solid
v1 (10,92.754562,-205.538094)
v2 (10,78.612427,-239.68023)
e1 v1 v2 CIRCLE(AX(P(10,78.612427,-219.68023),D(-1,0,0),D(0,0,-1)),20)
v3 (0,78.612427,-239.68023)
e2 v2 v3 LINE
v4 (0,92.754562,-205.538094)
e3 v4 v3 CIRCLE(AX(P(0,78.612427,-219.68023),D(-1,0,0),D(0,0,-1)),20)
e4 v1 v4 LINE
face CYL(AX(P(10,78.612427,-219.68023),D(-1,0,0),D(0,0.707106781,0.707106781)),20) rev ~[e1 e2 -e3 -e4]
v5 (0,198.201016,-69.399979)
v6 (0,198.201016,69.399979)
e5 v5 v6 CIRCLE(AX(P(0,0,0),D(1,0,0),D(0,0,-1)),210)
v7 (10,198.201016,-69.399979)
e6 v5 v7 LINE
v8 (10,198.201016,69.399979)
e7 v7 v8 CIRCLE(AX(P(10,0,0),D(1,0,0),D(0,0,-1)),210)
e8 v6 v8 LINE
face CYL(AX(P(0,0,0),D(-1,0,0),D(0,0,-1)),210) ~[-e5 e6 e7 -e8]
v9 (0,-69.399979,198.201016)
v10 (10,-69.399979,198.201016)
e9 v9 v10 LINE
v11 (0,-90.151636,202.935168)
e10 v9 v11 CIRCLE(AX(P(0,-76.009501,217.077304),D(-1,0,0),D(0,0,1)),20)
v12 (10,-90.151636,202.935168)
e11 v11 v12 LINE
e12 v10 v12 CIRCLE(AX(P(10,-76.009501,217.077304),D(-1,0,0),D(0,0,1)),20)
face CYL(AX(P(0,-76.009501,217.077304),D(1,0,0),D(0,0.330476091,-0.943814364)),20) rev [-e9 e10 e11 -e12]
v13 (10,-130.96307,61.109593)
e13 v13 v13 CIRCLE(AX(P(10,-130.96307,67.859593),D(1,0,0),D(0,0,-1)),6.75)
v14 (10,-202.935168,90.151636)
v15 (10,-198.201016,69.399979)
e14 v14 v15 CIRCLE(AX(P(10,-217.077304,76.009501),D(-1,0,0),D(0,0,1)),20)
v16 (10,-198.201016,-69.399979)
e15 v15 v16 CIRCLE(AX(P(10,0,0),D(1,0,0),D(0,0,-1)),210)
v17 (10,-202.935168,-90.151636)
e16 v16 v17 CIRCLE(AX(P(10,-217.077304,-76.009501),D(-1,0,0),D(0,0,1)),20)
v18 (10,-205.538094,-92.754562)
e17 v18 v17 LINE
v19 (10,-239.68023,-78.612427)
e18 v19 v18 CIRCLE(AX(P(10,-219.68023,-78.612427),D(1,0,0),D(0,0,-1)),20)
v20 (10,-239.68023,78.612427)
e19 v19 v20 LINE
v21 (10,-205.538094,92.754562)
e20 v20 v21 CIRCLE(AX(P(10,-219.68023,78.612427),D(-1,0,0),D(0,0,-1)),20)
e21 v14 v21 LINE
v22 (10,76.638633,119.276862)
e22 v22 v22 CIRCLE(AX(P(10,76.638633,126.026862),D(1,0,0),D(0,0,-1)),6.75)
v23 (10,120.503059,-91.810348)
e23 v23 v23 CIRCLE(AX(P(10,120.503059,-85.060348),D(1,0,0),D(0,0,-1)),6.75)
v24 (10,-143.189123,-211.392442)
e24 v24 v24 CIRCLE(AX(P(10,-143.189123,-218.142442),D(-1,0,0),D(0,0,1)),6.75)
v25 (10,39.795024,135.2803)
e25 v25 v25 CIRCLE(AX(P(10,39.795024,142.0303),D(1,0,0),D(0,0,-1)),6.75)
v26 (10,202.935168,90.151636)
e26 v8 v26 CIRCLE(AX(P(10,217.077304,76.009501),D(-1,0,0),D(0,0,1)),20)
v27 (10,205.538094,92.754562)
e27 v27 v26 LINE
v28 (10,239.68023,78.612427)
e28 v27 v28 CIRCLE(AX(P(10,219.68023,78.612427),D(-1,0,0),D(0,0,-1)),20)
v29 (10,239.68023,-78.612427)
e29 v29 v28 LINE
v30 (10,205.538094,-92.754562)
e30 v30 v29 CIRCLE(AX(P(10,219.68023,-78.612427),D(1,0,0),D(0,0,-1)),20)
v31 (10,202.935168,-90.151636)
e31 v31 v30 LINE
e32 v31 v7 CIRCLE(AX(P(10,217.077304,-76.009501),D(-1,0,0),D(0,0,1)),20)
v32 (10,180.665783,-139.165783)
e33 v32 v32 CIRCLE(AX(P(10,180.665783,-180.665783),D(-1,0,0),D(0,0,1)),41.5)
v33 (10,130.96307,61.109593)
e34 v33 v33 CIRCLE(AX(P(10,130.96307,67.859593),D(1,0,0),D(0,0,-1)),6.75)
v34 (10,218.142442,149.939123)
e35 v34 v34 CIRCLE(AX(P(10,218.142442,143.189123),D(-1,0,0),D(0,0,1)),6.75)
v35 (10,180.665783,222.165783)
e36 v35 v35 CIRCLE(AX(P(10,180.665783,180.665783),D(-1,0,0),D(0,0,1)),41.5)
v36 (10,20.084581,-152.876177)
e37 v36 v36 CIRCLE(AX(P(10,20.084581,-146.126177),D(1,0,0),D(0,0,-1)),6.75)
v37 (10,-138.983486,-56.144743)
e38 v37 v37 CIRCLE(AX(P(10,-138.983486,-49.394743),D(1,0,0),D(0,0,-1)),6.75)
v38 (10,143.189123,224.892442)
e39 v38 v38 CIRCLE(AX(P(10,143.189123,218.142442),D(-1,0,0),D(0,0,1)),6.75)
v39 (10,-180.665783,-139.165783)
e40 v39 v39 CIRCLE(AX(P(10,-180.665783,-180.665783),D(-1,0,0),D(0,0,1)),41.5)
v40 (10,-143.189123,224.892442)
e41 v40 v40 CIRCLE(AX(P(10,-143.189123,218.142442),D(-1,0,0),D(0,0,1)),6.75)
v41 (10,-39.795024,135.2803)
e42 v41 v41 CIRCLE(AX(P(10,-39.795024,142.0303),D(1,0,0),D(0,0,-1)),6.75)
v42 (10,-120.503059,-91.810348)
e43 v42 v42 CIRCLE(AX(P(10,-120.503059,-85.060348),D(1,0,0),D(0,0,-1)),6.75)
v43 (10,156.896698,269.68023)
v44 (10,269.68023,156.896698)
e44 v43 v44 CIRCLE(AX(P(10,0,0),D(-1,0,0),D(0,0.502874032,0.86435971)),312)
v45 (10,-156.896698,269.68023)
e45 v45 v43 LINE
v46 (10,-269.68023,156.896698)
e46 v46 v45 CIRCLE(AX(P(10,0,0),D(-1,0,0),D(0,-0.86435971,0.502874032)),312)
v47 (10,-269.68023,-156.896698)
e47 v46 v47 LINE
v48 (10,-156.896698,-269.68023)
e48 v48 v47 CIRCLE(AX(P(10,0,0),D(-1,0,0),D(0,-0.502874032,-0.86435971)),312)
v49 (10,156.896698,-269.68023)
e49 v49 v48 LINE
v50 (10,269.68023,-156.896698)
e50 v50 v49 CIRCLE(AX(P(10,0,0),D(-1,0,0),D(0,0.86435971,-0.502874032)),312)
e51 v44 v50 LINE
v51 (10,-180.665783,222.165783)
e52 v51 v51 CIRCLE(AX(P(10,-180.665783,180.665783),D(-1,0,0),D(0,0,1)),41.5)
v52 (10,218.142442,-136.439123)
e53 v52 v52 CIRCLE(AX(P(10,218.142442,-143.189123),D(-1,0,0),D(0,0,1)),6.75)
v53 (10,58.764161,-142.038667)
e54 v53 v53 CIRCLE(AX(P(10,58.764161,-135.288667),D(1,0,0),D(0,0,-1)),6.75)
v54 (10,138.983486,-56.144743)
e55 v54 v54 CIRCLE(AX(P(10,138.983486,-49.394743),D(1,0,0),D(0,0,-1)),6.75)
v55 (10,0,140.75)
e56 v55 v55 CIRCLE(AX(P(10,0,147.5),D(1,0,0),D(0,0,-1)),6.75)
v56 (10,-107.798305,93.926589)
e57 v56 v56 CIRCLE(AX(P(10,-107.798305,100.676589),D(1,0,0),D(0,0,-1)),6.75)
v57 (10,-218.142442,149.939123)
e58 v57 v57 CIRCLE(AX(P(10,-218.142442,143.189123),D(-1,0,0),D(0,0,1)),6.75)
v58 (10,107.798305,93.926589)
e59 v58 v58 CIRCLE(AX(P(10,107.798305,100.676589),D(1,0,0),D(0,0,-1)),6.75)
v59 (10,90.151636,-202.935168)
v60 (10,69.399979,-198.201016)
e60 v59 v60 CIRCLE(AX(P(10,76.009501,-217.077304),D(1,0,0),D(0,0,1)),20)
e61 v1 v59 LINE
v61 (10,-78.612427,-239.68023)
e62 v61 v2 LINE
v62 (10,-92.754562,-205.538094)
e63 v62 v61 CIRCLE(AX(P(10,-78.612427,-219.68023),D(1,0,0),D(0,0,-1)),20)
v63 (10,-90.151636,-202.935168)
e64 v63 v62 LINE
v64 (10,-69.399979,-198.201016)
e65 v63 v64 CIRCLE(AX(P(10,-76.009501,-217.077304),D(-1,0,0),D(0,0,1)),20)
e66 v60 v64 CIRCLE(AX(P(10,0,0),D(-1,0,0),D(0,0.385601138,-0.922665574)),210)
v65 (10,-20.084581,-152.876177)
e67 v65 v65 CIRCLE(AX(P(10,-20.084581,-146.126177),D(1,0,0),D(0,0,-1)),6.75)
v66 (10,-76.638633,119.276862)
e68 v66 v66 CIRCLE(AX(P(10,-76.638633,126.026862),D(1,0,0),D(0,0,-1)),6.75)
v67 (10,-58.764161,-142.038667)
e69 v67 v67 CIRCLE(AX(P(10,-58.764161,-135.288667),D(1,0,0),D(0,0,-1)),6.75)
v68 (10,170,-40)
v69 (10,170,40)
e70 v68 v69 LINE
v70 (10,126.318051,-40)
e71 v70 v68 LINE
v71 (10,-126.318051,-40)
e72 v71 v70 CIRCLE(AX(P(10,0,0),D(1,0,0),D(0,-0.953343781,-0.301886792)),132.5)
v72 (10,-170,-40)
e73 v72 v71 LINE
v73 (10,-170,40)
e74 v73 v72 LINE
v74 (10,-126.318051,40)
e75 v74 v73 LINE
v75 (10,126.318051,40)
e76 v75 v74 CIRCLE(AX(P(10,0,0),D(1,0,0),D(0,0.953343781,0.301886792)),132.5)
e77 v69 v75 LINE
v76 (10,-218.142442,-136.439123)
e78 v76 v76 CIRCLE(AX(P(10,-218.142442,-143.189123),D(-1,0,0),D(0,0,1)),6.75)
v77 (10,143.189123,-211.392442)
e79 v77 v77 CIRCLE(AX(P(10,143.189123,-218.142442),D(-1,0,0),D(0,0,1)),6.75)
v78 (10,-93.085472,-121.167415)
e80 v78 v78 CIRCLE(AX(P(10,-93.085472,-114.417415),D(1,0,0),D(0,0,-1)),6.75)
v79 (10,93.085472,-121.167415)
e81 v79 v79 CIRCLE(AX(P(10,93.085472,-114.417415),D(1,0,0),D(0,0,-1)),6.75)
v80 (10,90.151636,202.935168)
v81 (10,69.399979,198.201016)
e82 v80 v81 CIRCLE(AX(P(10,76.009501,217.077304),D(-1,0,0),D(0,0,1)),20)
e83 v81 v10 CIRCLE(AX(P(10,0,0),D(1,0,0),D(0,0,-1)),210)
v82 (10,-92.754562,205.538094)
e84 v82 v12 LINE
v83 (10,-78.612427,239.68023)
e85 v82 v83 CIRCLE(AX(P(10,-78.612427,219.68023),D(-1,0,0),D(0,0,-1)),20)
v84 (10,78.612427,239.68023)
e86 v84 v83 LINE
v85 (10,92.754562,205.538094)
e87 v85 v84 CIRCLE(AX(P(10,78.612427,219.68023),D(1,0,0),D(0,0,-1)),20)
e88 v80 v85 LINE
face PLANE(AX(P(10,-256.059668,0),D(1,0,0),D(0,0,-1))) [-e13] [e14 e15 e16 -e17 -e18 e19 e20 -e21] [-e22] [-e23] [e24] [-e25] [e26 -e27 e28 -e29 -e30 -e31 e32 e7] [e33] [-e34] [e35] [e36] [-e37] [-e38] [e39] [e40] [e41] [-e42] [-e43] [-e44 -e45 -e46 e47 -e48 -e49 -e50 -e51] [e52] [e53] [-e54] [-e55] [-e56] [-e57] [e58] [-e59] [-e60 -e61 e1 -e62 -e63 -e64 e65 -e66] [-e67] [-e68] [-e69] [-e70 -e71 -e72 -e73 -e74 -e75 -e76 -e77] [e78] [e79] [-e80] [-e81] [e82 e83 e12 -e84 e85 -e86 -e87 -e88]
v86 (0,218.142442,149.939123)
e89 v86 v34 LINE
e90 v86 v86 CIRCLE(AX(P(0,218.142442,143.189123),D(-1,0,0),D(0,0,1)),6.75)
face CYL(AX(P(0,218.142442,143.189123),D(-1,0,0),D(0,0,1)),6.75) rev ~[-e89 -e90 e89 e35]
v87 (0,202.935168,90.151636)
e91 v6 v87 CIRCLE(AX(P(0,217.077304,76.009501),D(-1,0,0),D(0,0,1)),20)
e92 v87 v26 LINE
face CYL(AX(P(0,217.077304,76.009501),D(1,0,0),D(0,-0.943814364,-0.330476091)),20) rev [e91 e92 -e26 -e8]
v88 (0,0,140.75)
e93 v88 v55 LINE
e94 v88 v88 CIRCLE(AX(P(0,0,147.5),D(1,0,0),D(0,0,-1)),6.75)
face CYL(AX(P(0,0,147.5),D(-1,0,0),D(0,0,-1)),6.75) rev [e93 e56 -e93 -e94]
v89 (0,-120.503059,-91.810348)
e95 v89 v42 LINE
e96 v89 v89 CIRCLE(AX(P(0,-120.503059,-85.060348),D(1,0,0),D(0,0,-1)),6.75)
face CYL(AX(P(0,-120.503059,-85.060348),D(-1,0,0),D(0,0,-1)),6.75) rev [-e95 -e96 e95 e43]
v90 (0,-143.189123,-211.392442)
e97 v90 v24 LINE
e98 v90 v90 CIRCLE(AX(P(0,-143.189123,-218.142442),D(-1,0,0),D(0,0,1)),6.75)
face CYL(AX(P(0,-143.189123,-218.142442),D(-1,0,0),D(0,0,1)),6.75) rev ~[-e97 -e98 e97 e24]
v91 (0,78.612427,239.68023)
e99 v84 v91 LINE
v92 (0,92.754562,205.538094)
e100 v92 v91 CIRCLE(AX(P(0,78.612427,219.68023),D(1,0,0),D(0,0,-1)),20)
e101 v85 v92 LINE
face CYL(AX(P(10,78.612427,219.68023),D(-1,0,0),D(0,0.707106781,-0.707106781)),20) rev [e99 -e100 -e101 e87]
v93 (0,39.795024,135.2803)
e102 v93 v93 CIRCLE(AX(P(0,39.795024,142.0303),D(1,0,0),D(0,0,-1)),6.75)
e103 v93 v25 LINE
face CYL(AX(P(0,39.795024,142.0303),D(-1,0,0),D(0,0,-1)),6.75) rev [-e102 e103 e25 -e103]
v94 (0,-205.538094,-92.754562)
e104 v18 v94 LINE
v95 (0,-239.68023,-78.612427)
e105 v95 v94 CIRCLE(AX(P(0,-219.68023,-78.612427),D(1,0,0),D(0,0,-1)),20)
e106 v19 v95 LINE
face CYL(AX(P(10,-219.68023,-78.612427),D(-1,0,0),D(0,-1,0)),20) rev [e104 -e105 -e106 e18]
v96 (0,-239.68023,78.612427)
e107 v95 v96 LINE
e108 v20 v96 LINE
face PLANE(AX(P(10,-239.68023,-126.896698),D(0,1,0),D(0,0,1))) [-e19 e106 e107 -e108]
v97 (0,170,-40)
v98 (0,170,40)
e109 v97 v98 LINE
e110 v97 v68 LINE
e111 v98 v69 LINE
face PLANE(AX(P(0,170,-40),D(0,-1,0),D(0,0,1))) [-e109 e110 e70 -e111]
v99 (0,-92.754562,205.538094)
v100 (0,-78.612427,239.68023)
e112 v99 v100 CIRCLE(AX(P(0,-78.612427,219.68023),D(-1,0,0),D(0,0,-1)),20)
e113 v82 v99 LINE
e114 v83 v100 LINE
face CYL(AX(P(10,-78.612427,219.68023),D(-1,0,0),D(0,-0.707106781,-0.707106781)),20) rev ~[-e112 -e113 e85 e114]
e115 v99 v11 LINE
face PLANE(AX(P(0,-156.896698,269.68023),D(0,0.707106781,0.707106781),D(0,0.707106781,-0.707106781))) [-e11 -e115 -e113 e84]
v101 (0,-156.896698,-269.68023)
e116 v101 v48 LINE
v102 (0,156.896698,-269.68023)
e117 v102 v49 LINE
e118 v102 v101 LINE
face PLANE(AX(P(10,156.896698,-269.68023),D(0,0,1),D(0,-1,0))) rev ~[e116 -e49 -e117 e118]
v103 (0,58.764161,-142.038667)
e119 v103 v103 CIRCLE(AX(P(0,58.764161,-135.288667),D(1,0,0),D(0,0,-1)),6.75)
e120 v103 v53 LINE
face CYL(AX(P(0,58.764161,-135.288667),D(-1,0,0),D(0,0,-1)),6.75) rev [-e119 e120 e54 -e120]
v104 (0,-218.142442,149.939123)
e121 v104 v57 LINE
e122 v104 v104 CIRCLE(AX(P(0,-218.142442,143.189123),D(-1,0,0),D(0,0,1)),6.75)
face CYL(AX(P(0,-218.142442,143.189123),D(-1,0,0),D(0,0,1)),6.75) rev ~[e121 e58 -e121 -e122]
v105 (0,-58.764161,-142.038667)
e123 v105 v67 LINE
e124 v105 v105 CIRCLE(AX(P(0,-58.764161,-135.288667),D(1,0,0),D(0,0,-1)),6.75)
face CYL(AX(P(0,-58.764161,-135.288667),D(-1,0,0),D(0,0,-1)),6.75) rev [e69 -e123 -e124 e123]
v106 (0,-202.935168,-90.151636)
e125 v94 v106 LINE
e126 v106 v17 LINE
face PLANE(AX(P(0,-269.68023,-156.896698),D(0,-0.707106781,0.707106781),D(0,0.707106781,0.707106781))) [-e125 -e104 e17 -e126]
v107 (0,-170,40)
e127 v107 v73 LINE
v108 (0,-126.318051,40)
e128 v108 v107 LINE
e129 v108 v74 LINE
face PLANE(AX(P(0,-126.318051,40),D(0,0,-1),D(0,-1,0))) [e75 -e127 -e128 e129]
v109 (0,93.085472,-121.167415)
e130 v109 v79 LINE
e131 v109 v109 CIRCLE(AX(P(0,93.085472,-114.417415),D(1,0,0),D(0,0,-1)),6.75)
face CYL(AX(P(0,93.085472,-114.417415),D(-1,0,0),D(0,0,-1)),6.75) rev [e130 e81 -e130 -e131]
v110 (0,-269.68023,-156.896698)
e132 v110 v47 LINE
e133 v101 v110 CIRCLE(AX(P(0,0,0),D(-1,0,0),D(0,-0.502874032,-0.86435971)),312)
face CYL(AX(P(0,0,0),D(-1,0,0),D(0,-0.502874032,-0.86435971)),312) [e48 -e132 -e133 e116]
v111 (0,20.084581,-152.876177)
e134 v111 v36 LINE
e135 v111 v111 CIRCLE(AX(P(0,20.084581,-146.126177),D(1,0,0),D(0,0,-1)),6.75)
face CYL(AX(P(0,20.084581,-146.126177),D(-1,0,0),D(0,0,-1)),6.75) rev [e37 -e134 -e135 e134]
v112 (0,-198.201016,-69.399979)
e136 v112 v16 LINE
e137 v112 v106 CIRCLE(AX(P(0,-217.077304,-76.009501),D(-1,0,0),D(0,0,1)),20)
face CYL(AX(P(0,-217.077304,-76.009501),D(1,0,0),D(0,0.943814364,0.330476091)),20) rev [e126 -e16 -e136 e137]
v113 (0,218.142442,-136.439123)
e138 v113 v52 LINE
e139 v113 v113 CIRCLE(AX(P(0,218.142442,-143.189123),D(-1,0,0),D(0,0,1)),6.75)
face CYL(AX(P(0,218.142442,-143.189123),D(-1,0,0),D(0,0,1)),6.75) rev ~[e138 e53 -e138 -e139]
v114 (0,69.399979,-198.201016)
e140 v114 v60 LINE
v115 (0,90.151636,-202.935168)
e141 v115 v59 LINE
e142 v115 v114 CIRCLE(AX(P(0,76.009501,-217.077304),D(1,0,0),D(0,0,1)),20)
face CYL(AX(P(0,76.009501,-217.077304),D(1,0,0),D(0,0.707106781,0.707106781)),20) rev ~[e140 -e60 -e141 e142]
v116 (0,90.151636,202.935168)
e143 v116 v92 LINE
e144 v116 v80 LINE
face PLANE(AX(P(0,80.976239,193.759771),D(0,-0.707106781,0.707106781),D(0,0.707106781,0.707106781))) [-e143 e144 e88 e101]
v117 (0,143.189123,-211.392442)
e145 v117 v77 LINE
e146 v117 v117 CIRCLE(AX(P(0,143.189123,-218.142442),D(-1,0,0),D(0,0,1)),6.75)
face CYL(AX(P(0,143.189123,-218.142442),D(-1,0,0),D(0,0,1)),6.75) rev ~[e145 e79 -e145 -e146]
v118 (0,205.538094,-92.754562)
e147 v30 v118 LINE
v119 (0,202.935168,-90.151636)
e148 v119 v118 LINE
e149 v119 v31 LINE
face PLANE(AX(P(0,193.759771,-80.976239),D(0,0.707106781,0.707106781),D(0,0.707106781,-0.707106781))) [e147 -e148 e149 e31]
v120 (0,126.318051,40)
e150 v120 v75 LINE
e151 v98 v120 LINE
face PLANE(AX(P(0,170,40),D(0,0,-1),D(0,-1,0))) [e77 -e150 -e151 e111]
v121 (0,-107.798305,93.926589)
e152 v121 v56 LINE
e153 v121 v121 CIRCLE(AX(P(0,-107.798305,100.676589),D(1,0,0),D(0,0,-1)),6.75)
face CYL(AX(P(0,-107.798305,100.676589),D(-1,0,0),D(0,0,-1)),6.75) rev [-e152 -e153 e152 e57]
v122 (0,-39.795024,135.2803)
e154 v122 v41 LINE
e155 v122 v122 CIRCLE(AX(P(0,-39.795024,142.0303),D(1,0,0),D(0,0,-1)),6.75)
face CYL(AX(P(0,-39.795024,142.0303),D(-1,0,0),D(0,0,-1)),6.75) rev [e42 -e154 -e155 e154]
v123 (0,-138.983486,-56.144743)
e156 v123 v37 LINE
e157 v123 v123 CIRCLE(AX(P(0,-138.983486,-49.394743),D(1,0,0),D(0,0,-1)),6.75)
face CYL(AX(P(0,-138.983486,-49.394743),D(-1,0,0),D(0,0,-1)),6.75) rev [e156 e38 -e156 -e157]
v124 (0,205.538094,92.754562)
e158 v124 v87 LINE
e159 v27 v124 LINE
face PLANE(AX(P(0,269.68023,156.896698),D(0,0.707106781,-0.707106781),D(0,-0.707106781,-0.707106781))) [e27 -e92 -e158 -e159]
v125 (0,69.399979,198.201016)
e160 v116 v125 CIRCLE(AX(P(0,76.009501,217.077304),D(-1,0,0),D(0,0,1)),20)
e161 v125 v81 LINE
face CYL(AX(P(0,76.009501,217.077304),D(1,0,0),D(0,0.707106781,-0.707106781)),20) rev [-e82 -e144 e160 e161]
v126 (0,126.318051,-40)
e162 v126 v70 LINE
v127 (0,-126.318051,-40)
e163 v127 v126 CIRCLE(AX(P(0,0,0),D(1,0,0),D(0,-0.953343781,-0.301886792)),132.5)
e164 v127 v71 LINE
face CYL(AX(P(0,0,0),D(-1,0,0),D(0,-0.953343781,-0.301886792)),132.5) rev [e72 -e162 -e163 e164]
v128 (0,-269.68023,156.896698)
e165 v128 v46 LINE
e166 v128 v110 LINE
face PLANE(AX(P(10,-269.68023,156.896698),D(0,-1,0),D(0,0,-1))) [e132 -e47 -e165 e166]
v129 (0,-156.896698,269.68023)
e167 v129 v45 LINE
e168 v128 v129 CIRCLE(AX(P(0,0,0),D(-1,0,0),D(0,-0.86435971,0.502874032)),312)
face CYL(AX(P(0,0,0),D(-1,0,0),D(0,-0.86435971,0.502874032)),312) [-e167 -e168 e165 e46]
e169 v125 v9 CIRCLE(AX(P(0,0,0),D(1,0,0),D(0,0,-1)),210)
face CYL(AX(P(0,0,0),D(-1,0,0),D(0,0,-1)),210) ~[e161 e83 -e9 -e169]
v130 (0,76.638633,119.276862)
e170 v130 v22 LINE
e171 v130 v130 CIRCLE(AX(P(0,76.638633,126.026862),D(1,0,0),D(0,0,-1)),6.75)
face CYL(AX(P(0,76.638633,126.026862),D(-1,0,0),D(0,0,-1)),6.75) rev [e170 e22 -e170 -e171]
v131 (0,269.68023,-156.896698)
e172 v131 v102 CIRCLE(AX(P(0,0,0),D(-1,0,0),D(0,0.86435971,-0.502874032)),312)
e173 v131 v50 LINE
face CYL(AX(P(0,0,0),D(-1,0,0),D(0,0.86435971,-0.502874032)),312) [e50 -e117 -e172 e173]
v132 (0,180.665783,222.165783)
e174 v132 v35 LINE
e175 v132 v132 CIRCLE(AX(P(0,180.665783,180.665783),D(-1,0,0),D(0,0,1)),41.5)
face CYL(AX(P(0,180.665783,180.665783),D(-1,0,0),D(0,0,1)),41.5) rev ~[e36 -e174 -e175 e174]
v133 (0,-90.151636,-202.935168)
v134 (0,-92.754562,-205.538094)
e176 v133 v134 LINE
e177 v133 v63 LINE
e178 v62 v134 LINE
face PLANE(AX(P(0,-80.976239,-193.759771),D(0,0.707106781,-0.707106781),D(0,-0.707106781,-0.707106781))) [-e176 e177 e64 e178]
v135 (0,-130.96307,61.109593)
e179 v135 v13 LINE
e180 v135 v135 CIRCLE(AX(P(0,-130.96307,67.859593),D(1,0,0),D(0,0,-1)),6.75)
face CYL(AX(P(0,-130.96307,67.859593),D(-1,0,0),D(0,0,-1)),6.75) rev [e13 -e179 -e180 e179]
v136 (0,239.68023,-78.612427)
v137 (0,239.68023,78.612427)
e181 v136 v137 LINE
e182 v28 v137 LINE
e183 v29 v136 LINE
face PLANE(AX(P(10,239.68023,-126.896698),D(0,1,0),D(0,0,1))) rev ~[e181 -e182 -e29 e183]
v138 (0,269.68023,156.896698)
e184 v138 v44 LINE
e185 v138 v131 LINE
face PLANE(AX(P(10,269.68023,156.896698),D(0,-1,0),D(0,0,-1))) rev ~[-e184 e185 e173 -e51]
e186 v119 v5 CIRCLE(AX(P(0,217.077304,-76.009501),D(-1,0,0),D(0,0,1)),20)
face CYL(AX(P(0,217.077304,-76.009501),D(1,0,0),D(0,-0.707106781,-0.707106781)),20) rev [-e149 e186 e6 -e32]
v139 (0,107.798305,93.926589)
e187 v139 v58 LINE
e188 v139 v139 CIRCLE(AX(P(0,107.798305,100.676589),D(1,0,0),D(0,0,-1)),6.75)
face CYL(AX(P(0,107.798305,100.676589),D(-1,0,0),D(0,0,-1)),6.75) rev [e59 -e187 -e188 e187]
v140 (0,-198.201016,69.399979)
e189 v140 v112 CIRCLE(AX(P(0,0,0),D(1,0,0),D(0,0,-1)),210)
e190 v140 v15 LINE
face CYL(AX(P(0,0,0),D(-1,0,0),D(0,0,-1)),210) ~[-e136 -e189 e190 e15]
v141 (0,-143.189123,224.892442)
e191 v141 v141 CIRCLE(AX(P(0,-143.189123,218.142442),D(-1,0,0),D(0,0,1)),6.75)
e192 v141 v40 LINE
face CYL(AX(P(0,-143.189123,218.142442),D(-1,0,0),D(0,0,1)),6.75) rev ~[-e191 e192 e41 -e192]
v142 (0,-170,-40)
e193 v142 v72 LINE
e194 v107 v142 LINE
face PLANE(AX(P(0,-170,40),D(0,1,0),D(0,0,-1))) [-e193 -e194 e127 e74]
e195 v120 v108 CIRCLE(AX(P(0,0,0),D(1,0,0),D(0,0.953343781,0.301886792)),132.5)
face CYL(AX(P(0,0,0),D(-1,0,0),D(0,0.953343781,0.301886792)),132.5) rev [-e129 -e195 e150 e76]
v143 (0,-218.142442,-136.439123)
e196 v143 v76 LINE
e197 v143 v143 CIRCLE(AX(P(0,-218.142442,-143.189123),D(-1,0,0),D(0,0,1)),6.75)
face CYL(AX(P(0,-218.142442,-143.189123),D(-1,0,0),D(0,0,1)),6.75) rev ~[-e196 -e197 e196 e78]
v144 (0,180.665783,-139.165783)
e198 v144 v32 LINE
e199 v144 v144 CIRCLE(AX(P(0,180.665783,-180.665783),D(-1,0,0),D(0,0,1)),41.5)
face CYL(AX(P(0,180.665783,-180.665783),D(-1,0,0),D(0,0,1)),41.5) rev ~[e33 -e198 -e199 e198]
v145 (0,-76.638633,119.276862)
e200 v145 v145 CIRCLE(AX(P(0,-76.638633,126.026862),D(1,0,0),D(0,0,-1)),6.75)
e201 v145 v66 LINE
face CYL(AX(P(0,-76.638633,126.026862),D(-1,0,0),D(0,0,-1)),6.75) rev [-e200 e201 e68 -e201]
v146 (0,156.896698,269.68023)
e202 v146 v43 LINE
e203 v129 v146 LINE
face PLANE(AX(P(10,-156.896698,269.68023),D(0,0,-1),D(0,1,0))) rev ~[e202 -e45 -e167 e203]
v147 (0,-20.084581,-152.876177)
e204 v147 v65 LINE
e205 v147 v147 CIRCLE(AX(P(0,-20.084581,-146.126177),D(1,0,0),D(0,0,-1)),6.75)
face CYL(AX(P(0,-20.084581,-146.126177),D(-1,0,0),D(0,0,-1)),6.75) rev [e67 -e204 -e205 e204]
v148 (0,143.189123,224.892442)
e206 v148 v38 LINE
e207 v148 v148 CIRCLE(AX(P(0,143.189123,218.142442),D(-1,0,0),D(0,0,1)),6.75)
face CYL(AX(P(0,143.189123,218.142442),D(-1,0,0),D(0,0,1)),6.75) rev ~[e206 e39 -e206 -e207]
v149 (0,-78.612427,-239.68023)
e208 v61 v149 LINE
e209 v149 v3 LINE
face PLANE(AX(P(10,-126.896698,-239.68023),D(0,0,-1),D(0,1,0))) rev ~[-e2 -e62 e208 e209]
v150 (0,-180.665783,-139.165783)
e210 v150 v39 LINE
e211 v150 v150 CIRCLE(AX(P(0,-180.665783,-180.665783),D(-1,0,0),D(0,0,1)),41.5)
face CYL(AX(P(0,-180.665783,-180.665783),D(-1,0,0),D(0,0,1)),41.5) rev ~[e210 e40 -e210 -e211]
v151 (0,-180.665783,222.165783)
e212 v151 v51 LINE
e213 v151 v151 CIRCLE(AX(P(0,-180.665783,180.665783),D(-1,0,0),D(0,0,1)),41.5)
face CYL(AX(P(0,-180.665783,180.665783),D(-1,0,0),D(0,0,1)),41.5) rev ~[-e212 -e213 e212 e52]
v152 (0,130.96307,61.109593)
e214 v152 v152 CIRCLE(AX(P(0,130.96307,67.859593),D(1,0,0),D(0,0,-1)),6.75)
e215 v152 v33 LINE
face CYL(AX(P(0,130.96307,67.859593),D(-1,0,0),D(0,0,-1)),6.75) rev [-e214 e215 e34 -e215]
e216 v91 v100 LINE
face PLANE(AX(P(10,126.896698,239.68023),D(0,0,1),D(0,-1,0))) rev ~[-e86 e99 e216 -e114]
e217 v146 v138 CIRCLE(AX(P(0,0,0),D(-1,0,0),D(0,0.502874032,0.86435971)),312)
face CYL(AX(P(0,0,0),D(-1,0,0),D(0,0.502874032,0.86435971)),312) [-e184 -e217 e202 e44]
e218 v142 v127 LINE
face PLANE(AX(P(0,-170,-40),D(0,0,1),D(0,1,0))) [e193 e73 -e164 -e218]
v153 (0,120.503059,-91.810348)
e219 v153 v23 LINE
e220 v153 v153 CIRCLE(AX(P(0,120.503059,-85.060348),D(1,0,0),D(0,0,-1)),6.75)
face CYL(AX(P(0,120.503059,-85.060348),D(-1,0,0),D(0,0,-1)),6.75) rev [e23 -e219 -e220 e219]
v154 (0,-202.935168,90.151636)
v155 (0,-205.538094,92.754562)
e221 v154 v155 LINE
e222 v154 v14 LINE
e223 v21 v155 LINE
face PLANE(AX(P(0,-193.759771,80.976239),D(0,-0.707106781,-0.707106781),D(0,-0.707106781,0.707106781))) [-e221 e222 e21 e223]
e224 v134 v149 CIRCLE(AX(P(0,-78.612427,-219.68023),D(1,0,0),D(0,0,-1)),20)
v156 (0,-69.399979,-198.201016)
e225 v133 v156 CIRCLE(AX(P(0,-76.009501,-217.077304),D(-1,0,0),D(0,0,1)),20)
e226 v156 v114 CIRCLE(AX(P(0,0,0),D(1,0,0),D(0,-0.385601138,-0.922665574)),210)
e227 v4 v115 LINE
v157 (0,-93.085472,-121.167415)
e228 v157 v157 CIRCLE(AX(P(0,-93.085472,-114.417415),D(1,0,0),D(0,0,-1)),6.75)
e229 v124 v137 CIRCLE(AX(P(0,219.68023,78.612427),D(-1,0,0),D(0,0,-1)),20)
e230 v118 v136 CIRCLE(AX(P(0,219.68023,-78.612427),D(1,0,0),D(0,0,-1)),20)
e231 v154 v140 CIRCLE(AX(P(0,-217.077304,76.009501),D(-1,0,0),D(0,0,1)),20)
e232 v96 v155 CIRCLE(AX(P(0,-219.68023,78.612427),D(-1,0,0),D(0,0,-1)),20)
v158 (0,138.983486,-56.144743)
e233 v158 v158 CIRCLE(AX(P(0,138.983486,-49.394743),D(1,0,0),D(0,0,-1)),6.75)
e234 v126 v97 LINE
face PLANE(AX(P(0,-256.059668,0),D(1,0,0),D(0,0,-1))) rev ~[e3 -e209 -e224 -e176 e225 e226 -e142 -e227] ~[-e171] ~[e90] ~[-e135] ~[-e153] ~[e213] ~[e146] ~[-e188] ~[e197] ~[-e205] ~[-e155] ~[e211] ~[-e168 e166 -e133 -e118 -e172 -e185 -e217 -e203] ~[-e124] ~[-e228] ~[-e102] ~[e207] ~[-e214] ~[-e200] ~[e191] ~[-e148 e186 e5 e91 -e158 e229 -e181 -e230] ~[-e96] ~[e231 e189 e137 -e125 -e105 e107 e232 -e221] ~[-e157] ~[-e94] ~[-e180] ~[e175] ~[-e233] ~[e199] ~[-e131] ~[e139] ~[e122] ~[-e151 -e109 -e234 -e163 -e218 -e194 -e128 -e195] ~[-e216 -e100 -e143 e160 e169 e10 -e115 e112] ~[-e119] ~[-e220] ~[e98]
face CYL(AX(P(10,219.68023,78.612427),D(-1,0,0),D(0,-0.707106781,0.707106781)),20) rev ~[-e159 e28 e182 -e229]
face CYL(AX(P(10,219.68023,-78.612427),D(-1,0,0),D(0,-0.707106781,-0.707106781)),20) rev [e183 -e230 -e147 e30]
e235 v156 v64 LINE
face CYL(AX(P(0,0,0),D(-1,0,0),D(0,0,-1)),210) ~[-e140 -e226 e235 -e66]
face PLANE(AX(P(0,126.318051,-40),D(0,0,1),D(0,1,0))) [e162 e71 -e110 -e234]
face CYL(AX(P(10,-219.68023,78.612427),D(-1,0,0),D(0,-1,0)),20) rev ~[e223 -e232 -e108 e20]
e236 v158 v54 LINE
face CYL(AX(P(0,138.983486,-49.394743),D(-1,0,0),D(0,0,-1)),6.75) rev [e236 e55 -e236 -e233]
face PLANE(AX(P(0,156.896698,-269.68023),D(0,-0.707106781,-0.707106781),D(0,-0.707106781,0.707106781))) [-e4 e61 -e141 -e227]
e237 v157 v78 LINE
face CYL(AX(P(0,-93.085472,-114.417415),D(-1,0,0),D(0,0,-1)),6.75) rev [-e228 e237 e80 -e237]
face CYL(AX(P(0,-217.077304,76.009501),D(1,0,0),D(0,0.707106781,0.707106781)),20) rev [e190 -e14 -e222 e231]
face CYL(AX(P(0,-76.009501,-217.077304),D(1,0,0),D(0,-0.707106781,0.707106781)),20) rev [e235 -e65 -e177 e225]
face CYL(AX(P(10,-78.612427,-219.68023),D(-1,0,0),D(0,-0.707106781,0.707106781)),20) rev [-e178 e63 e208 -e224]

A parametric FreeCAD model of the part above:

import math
import FreeCAD as App
import Part
import Sketcher

V = App.Vector


def edges_at(feature, points):
    """Names of the edges that pass closest to the given points."""
    edges = feature.Shape.Edges
    near = lambda p: min(range(len(edges)), key=lambda i: edges[i].distToShape(Part.Vertex(*p))[0])
    return sorted({f"Edge{near(p) + 1}" for p in points})

doc = App.newDocument("Part")
params = doc.addObject("Spreadsheet::Sheet", "Params")
for row, (alias, value) in enumerate([
    ("sketch1_diameter", "420 mm"),
    ("sketch1_diameter2", "13.5 mm"),
    ("sketch1_radius", "132.5 mm"),
    ("sketch1_height", "80 mm"),
    ("pad1_length", "10 mm"),
    ("sketch2_diameter", "83 mm"),
    ("sketch2_radius", "210 mm"),
    ("sketch2_radius2", "312 mm"),
    ("sketch2_diameter2", "13.5 mm"),
    ("pad2_length", "10 mm"),
    ("pad3_length", "10 mm"),
    ("fillet_radius", "20 mm"),
], start=1):
    params.set(f"A{row}", alias)
    params.set(f"B{row}", "=" + value)
    params.setAlias(f"B{row}", alias)

body = doc.addObject("PartDesign::Body", "Body")

# Sketch on YZ plane
sketch1 = doc.addObject("Sketcher::SketchObject", "Sketch")
body.addObject(sketch1)
sketch1.AttachmentSupport = (doc.YZ_Plane, [""])
sketch1.MapMode = "FlatFace"
sketch1.addGeometry(Part.Circle(V(0, 0, 0), V(0, 0, 1), 210), False)
sketch1.addGeometry(Part.Circle(V(-108, 101, 0), V(0, 0, 1), 7), False)
sketch1.addGeometry(Part.Circle(V(-131, 68, 0), V(0, 0, 1), 7), False)
sketch1.addGeometry(Part.Circle(V(-77, 126, 0), V(0, 0, 1), 7), False)
sketch1.addGeometry(Part.Circle(V(-40, 142, 0), V(0, 0, 1), 7), False)
sketch1.addGeometry(Part.Circle(V(-139, -49, 0), V(0, 0, 1), 7), False)
sketch1.addGeometry(Part.Circle(V(-121, -85, 0), V(0, 0, 1), 7), False)
sketch1.addGeometry(Part.Circle(V(-93, -114, 0), V(0, 0, 1), 7), False)
sketch1.addGeometry(Part.Circle(V(-59, -135, 0), V(0, 0, 1), 7), False)
sketch1.addGeometry(Part.Circle(V(-20, -146, 0), V(0, 0, 1), 7), False)
sketch1.addGeometry(Part.Circle(V(0, 148, 0), V(0, 0, 1), 7), False)
sketch1.addGeometry(Part.Circle(V(40, 142, 0), V(0, 0, 1), 7), False)
sketch1.addGeometry(Part.Circle(V(77, 126, 0), V(0, 0, 1), 7), False)
sketch1.addGeometry(Part.Circle(V(108, 101, 0), V(0, 0, 1), 7), False)
sketch1.addGeometry(Part.Circle(V(131, 68, 0), V(0, 0, 1), 7), False)
sketch1.addGeometry(Part.ArcOfCircle(Part.Circle(V(0, 0, 0), V(0, 0, 1), 133), math.radians(-162), math.radians(-18)), False)
sketch1.addGeometry(Part.LineSegment(V(-126, -40, 0), V(-170, -40, 0)), False)
sketch1.addGeometry(Part.LineSegment(V(-170, -40, 0), V(-170, 40, 0)), False)
sketch1.addGeometry(Part.LineSegment(V(-170, 40, 0), V(-126, 40, 0)), False)
sketch1.addGeometry(Part.ArcOfCircle(Part.Circle(V(0, 0, 0), V(0, 0, 1), 133), math.radians(18), math.radians(162)), False)
sketch1.addGeometry(Part.LineSegment(V(126, 40, 0), V(170, 40, 0)), False)
sketch1.addGeometry(Part.LineSegment(V(170, 40, 0), V(170, -40, 0)), False)
sketch1.addGeometry(Part.LineSegment(V(170, -40, 0), V(126, -40, 0)), False)
sketch1.addGeometry(Part.Circle(V(20, -146, 0), V(0, 0, 1), 7), False)
sketch1.addGeometry(Part.Circle(V(59, -135, 0), V(0, 0, 1), 7), False)
sketch1.addGeometry(Part.Circle(V(139, -49, 0), V(0, 0, 1), 7), False)
sketch1.addGeometry(Part.Circle(V(93, -114, 0), V(0, 0, 1), 7), False)
sketch1.addGeometry(Part.Circle(V(121, -85, 0), V(0, 0, 1), 7), False)
sketch1.addConstraint(Sketcher.Constraint("Coincident", 15, 1, 16, 1))
sketch1.addConstraint(Sketcher.Constraint("Coincident", 16, 2, 17, 1))
sketch1.addConstraint(Sketcher.Constraint("Coincident", 17, 2, 18, 1))
sketch1.addConstraint(Sketcher.Constraint("Coincident", 18, 2, 19, 2))
sketch1.addConstraint(Sketcher.Constraint("Coincident", 19, 1, 20, 1))
sketch1.addConstraint(Sketcher.Constraint("Coincident", 20, 2, 21, 1))
sketch1.addConstraint(Sketcher.Constraint("Coincident", 21, 2, 22, 1))
sketch1.addConstraint(Sketcher.Constraint("Coincident", 22, 2, 15, 2))
sketch1.addConstraint(Sketcher.Constraint("Horizontal", 16))
sketch1.addConstraint(Sketcher.Constraint("Vertical", 17))
sketch1.addConstraint(Sketcher.Constraint("Horizontal", 18))
sketch1.addConstraint(Sketcher.Constraint("Horizontal", 20))
sketch1.addConstraint(Sketcher.Constraint("Vertical", 21))
sketch1.addConstraint(Sketcher.Constraint("Horizontal", 22))
sketch1.addConstraint(Sketcher.Constraint("Coincident", 0, 3, -1, 1))
sketch1.addConstraint(Sketcher.Constraint("Coincident", 15, 3, -1, 1))
sketch1.addConstraint(Sketcher.Constraint("Coincident", 19, 3, -1, 1))
sketch1.addConstraint(Sketcher.Constraint("Equal", 1, 2))
sketch1.addConstraint(Sketcher.Constraint("Equal", 2, 3))
sketch1.addConstraint(Sketcher.Constraint("Equal", 3, 4))
sketch1.addConstraint(Sketcher.Constraint("Equal", 4, 5))
sketch1.addConstraint(Sketcher.Constraint("Equal", 5, 6))
sketch1.addConstraint(Sketcher.Constraint("Equal", 6, 7))
sketch1.addConstraint(Sketcher.Constraint("Equal", 7, 8))
sketch1.addConstraint(Sketcher.Constraint("Equal", 8, 9))
sketch1.addConstraint(Sketcher.Constraint("Equal", 9, 10))
sketch1.addConstraint(Sketcher.Constraint("Equal", 10, 11))
sketch1.addConstraint(Sketcher.Constraint("Equal", 11, 12))
sketch1.addConstraint(Sketcher.Constraint("Equal", 12, 13))
sketch1.addConstraint(Sketcher.Constraint("Equal", 13, 14))
sketch1.addConstraint(Sketcher.Constraint("Equal", 15, 19))
sketch1.addConstraint(Sketcher.Constraint("Equal", 14, 23))
sketch1.addConstraint(Sketcher.Constraint("Equal", 23, 24))
sketch1.addConstraint(Sketcher.Constraint("Equal", 24, 25))
sketch1.addConstraint(Sketcher.Constraint("Equal", 25, 26))
sketch1.addConstraint(Sketcher.Constraint("Equal", 26, 27))
sketch1.addConstraint(Sketcher.Constraint("Symmetric", 16, 2, 20, 2, -1, 1))
sketch1.addConstraint(Sketcher.Constraint("Symmetric", 4, 3, 11, 3, -2))
sketch1.addConstraint(Sketcher.Constraint("Symmetric", 3, 3, 12, 3, -2))
sketch1.addConstraint(Sketcher.Constraint("Symmetric", 1, 3, 13, 3, -2))
sketch1.addConstraint(Sketcher.Constraint("Symmetric", 2, 3, 14, 3, -2))
sketch1.addConstraint(Sketcher.Constraint("Symmetric", 9, 3, 23, 3, -2))
sketch1.addConstraint(Sketcher.Constraint("Symmetric", 8, 3, 24, 3, -2))
sketch1.addConstraint(Sketcher.Constraint("Symmetric", 5, 3, 25, 3, -2))
sketch1.addConstraint(Sketcher.Constraint("Symmetric", 7, 3, 26, 3, -2))
sketch1.addConstraint(Sketcher.Constraint("Symmetric", 6, 3, 27, 3, -2))
sketch1.addConstraint(Sketcher.Constraint("PointOnObject", 10, 3, -2))
sketch1.addConstraint(Sketcher.Constraint("Horizontal", 18, 2, 19, 1))
sketch1.addConstraint(Sketcher.Constraint("Horizontal", 16, 2, 21, 2))
sketch1.addConstraint(Sketcher.Constraint("Diameter", 0, 420.0))
sketch1.addConstraint(Sketcher.Constraint("Diameter", 1, 13.5))
sketch1.addConstraint(Sketcher.Constraint("Radius", 15, 132.5))
sketch1.addConstraint(Sketcher.Constraint("DistanceY", 17, 1, 17, 2, 80.0))
sketch1.addConstraint(Sketcher.Constraint("DistanceX", 16, 2, -1, 1, 170.0))
sketch1.addConstraint(Sketcher.Constraint("DistanceY", -1, 1, 10, 3, 147.5))
sketch1.addConstraint(Sketcher.Constraint("DistanceY", -1, 1, 4, 3, 142.0303))
sketch1.addConstraint(Sketcher.Constraint("DistanceX", 6, 3, 8, 3, 61.738898))
sketch1.addConstraint(Sketcher.Constraint("DistanceY", -1, 1, 1, 3, 100.676589))
sketch1.addConstraint(Sketcher.Constraint("DistanceX", 2, 3, -1, 1, 130.96307))
sketch1.addConstraint(Sketcher.Constraint("DistanceX", 6, 3, -1, 1, 120.503059))
sketch1.addConstraint(Sketcher.Constraint("DistanceX", 7, 3, -1, 1, 93.085472))
sketch1.addConstraint(Sketcher.Constraint("DistanceX", 9, 3, -1, 1, 20.084581))
sketch1.addConstraint(Sketcher.Constraint("DistanceY", 2, 3, 3, 3, 58.167269))
sketch1.addConstraint(Sketcher.Constraint("DistanceX", 3, 3, 4, 3, 36.843609))
sketch1.addConstraint(Sketcher.Constraint("DistanceX", 1, 3, 4, 3, 68.003281))
sketch1.addConstraint(Sketcher.Constraint("DistanceX", 5, 3, 1, 3, 31.185181))
sketch1.addConstraint(Sketcher.Constraint("DistanceY", 5, 3, 1, 3, 150.071331))
sketch1.addConstraint(Sketcher.Constraint("DistanceY", 6, 3, 2, 3, 152.919941))
sketch1.addConstraint(Sketcher.Constraint("DistanceY", 7, 3, 2, 3, 182.277008))
sketch1.addConstraint(Sketcher.Constraint("DistanceY", 8, 3, 7, 3, 20.871252))
sketch1.addConstraint(Sketcher.Constraint("DistanceY", 9, 3, 8, 3, 10.83751))
sketch1.addConstraint(Sketcher.Constraint("DistanceX", 1, 3, 11, 3, 147.593328))
sketch1.addConstraint(Sketcher.Constraint("DistanceY", -1, 1, 2, 3, 67.859593))
sketch1.setExpression("Constraints[49]", "Params.sketch1_diameter")
sketch1.setExpression("Constraints[50]", "Params.sketch1_diameter2")
sketch1.setExpression("Constraints[51]", "Params.sketch1_radius")
sketch1.setExpression("Constraints[52]", "Params.sketch1_height")
pad1 = doc.addObject("PartDesign::Pad", "Pad")
body.addObject(pad1)
pad1.Profile = sketch1
pad1.setExpression("Length", "Params.pad1_length")

# Sketch on YZ plane
sketch2 = doc.addObject("Sketcher::SketchObject", "Sketch001")
body.addObject(sketch2)
sketch2.AttachmentSupport = (doc.YZ_Plane, [""])
sketch2.MapMode = "FlatFace"
sketch2.addGeometry(Part.LineSegment(V(-270, -157, 0), V(-194, -81, 0)), False)
sketch2.addGeometry(Part.ArcOfCircle(Part.Circle(V(0, 0, 0), V(0, 0, 1), 210), math.radians(-157), math.radians(-113)), False)
sketch2.addGeometry(Part.LineSegment(V(-81, -194, 0), V(-157, -270, 0)), False)
sketch2.addGeometry(Part.ArcOfCircle(Part.Circle(V(0, 0, 0), V(0, 0, 1), 312), math.radians(-150), math.radians(-120)), False)
sketch2.addGeometry(Part.Circle(V(-218, -143, 0), V(0, 0, 1), 7), False)
sketch2.addGeometry(Part.Circle(V(-143, -218, 0), V(0, 0, 1), 7), False)
sketch2.addGeometry(Part.Circle(V(-181, -181, 0), V(0, 0, 1), 42), False)
sketch2.addGeometry(Part.LineSegment(V(-194, 81, 0), V(-270, 157, 0)), False)
sketch2.addGeometry(Part.ArcOfCircle(Part.Circle(V(0, 0, 0), V(0, 0, 1), 312), math.radians(120), math.radians(150)), False)
sketch2.addGeometry(Part.LineSegment(V(-157, 270, 0), V(-81, 194, 0)), False)
sketch2.addGeometry(Part.ArcOfCircle(Part.Circle(V(0, 0, 0), V(0, 0, 1), 210), math.radians(113), math.radians(157)), False)
sketch2.addGeometry(Part.Circle(V(-218, 143, 0), V(0, 0, 1), 7), False)
sketch2.addGeometry(Part.Circle(V(-181, 181, 0), V(0, 0, 1), 42), False)
sketch2.addGeometry(Part.Circle(V(-143, 218, 0), V(0, 0, 1), 7), False)
sketch2.addGeometry(Part.LineSegment(V(157, -270, 0), V(81, -194, 0)), False)
sketch2.addGeometry(Part.ArcOfCircle(Part.Circle(V(0, 0, 0), V(0, 0, 1), 210), math.radians(-67), math.radians(-23)), False)
sketch2.addGeometry(Part.LineSegment(V(194, -81, 0), V(270, -157, 0)), False)
sketch2.addGeometry(Part.ArcOfCircle(Part.Circle(V(0, 0, 0), V(0, 0, 1), 312), math.radians(-60), math.radians(-30)), False)
sketch2.addGeometry(Part.Circle(V(143, -218, 0), V(0, 0, 1), 7), False)
sketch2.addGeometry(Part.Circle(V(181, -181, 0), V(0, 0, 1), 42), False)
sketch2.addGeometry(Part.Circle(V(218, -143, 0), V(0, 0, 1), 7), False)
sketch2.addGeometry(Part.ArcOfCircle(Part.Circle(V(0, 0, 0), V(0, 0, 1), 312), math.radians(30), math.radians(60)), False)
sketch2.addGeometry(Part.LineSegment(V(270, 157, 0), V(194, 81, 0)), False)
sketch2.addGeometry(Part.ArcOfCircle(Part.Circle(V(0, 0, 0), V(0, 0, 1), 210), math.radians(23), math.radians(67)), False)
sketch2.addGeometry(Part.LineSegment(V(81, 194, 0), V(157, 270, 0)), False)
sketch2.addGeometry(Part.Circle(V(181, 181, 0), V(0, 0, 1), 42), False)
sketch2.addGeometry(Part.Circle(V(143, 218, 0), V(0, 0, 1), 7), False)
sketch2.addGeometry(Part.Circle(V(218, 143, 0), V(0, 0, 1), 7), False)
sketch2.addConstraint(Sketcher.Constraint("Coincident", 0, 2, 1, 1))
sketch2.addConstraint(Sketcher.Constraint("Coincident", 1, 2, 2, 1))
sketch2.addConstraint(Sketcher.Constraint("Coincident", 2, 2, 3, 2))
sketch2.addConstraint(Sketcher.Constraint("Coincident", 3, 1, 0, 1))
sketch2.addConstraint(Sketcher.Constraint("Coincident", 7, 2, 8, 2))
sketch2.addConstraint(Sketcher.Constraint("Coincident", 8, 1, 9, 1))
sketch2.addConstraint(Sketcher.Constraint("Coincident", 9, 2, 10, 1))
sketch2.addConstraint(Sketcher.Constraint("Coincident", 10, 2, 7, 1))
sketch2.addConstraint(Sketcher.Constraint("Coincident", 14, 2, 15, 1))
sketch2.addConstraint(Sketcher.Constraint("Coincident", 15, 2, 16, 1))
sketch2.addConstraint(Sketcher.Constraint("Coincident", 16, 2, 17, 2))
sketch2.addConstraint(Sketcher.Constraint("Coincident", 17, 1, 14, 1))
sketch2.addConstraint(Sketcher.Constraint("Coincident", 21, 1, 22, 1))
sketch2.addConstraint(Sketcher.Constraint("Coincident", 22, 2, 23, 1))
sketch2.addConstraint(Sketcher.Constraint("Coincident", 23, 2, 24, 1))
sketch2.addConstraint(Sketcher.Constraint("Coincident", 24, 2, 21, 2))
sketch2.addConstraint(Sketcher.Constraint("Coincident", 1, 3, -1, 1))
sketch2.addConstraint(Sketcher.Constraint("Coincident", 3, 3, -1, 1))
sketch2.addConstraint(Sketcher.Constraint("Coincident", 8, 3, -1, 1))
sketch2.addConstraint(Sketcher.Constraint("Coincident", 10, 3, -1, 1))
sketch2.addConstraint(Sketcher.Constraint("Coincident", 15, 3, -1, 1))
sketch2.addConstraint(Sketcher.Constraint("Coincident", 17, 3, -1, 1))
sketch2.addConstraint(Sketcher.Constraint("Coincident", 21, 3, -1, 1))
sketch2.addConstraint(Sketcher.Constraint("Coincident", 23, 3, -1, 1))
sketch2.addConstraint(Sketcher.Constraint("Equal", 4, 5))
sketch2.addConstraint(Sketcher.Constraint("Equal", 3, 8))
sketch2.addConstraint(Sketcher.Constraint("Equal", 1, 10))
sketch2.addConstraint(Sketcher.Constraint("Equal", 5, 11))
sketch2.addConstraint(Sketcher.Constraint("Equal", 6, 12))
sketch2.addConstraint(Sketcher.Constraint("Equal", 11, 13))
sketch2.addConstraint(Sketcher.Constraint("Equal", 10, 15))
sketch2.addConstraint(Sketcher.Constraint("Equal", 8, 17))
sketch2.addConstraint(Sketcher.Constraint("Equal", 13, 18))
sketch2.addConstraint(Sketcher.Constraint("Equal", 12, 19))
sketch2.addConstraint(Sketcher.Constraint("Equal", 18, 20))
sketch2.addConstraint(Sketcher.Constraint("Equal", 17, 21))
sketch2.addConstraint(Sketcher.Constraint("Equal", 15, 23))
sketch2.addConstraint(Sketcher.Constraint("Equal", 19, 25))
sketch2.addConstraint(Sketcher.Constraint("Equal", 20, 26))
sketch2.addConstraint(Sketcher.Constraint("Equal", 26, 27))
sketch2.addConstraint(Sketcher.Constraint("Symmetric", 13, 3, 18, 3, -1, 1))
sketch2.addConstraint(Sketcher.Constraint("Symmetric", 12, 3, 19, 3, -1, 1))
sketch2.addConstraint(Sketcher.Constraint("Symmetric", 11, 3, 20, 3, -1, 1))
sketch2.addConstraint(Sketcher.Constraint("Symmetric", 6, 3, 25, 3, -1, 1))
sketch2.addConstraint(Sketcher.Constraint("Symmetric", 5, 3, 26, 3, -1, 1))
sketch2.addConstraint(Sketcher.Constraint("Symmetric", 4, 3, 27, 3, -1, 1))
sketch2.addConstraint(Sketcher.Constraint("Symmetric", 5, 3, 18, 3, -2))
sketch2.addConstraint(Sketcher.Constraint("Symmetric", 6, 3, 19, 3, -2))
sketch2.addConstraint(Sketcher.Constraint("Symmetric", 4, 3, 20, 3, -2))
sketch2.addConstraint(Sketcher.Constraint("Parallel", 0, 2))
sketch2.addConstraint(Sketcher.Constraint("Perpendicular", 2, 7))
sketch2.addConstraint(Sketcher.Constraint("Parallel", 7, 9))
sketch2.addConstraint(Sketcher.Constraint("Parallel", 9, 14))
sketch2.addConstraint(Sketcher.Constraint("Parallel", 14, 16))
sketch2.addConstraint(Sketcher.Constraint("Perpendicular", 16, 22))
sketch2.addConstraint(Sketcher.Constraint("Parallel", 22, 24))
sketch2.addConstraint(Sketcher.Constraint("Horizontal", 1, 2, 14, 2))
sketch2.addConstraint(Sketcher.Constraint("Horizontal", 0, 2, 15, 2))
sketch2.addConstraint(Sketcher.Constraint("Horizontal", 3, 1, 16, 2))
sketch2.addConstraint(Sketcher.Constraint("Horizontal", 7, 2, 21, 1))
sketch2.addConstraint(Sketcher.Constraint("Horizontal", 9, 2, 23, 2))
sketch2.addConstraint(Sketcher.Constraint("Vertical", 3, 1, 7, 2))
sketch2.addConstraint(Sketcher.Constraint("Vertical", 2, 2, 8, 1))
sketch2.addConstraint(Sketcher.Constraint("Equal", 0, 2))
sketch2.addConstraint(Sketcher.Constraint("Diameter", 6, 83.0))
sketch2.addConstraint(Sketcher.Constraint("Radius", 1, 210.0))
sketch2.addConstraint(Sketcher.Constraint("Radius", 3, 312.0))
sketch2.addConstraint(Sketcher.Constraint("Diameter", 4, 13.5))
sketch2.addConstraint(Sketcher.Constraint("DistanceX", 4, 3, -1, 1, 218.142442))
sketch2.addConstraint(Sketcher.Constraint("DistanceY", 5, 3, -1, 1, 218.142442))
sketch2.addConstraint(Sketcher.Constraint("DistanceX", 0, 2, -1, 1, 193.759771))
sketch2.addConstraint(Sketcher.Constraint("DistanceX", 4, 3, 5, 3, 74.953319))
sketch2.addConstraint(Sketcher.Constraint("DistanceY", 5, 3, 4, 3, 74.953319))
sketch2.addConstraint(Sketcher.Constraint("DistanceX", 4, 3, 6, 3, 37.476659))
sketch2.addConstraint(Sketcher.Constraint("DistanceY", 6, 3, 4, 3, 37.476659))
sketch2.setExpression("Constraints[64]", "Params.sketch2_diameter")
sketch2.setExpression("Constraints[65]", "Params.sketch2_radius")
sketch2.setExpression("Constraints[66]", "Params.sketch2_radius2")
sketch2.setExpression("Constraints[67]", "Params.sketch2_diameter2")
pad2 = doc.addObject("PartDesign::Pad", "Pad001")
body.addObject(pad2)
pad2.Profile = sketch2
pad2.setExpression("Length", "Params.pad2_length")

# Sketch on YZ plane
sketch3 = doc.addObject("Sketcher::SketchObject", "Sketch002")
body.addObject(sketch3)
sketch3.AttachmentSupport = (doc.YZ_Plane, [""])
sketch3.MapMode = "FlatFace"
sketch3.AttachmentOffset = App.Placement(V(0, 0, 10), App.Rotation())
sketch3.addGeometry(Part.LineSegment(V(-270, 157, 0), V(-270, -157, 0)), False)
sketch3.addGeometry(Part.LineSegment(V(-270, -157, 0), V(-240, -127, 0)), False)
sketch3.addGeometry(Part.LineSegment(V(-240, -127, 0), V(-240, 127, 0)), False)
sketch3.addGeometry(Part.LineSegment(V(-240, 127, 0), V(-270, 157, 0)), False)
sketch3.addGeometry(Part.LineSegment(V(157, 270, 0), V(-157, 270, 0)), False)
sketch3.addGeometry(Part.LineSegment(V(-157, 270, 0), V(-127, 240, 0)), False)
sketch3.addGeometry(Part.LineSegment(V(-127, 240, 0), V(127, 240, 0)), False)
sketch3.addGeometry(Part.LineSegment(V(127, 240, 0), V(157, 270, 0)), False)
sketch3.addGeometry(Part.LineSegment(V(270, -157, 0), V(270, 157, 0)), False)
sketch3.addGeometry(Part.LineSegment(V(270, 157, 0), V(240, 127, 0)), False)
sketch3.addGeometry(Part.LineSegment(V(240, 127, 0), V(240, -127, 0)), False)
sketch3.addGeometry(Part.LineSegment(V(240, -127, 0), V(270, -157, 0)), False)
sketch3.addGeometry(Part.LineSegment(V(-157, -270, 0), V(157, -270, 0)), False)
sketch3.addGeometry(Part.LineSegment(V(157, -270, 0), V(127, -240, 0)), False)
sketch3.addGeometry(Part.LineSegment(V(127, -240, 0), V(-127, -240, 0)), False)
sketch3.addGeometry(Part.LineSegment(V(-127, -240, 0), V(-157, -270, 0)), False)
sketch3.addConstraint(Sketcher.Constraint("Coincident", 0, 2, 1, 1))
sketch3.addConstraint(Sketcher.Constraint("Coincident", 1, 2, 2, 1))
sketch3.addConstraint(Sketcher.Constraint("Coincident", 2, 2, 3, 1))
sketch3.addConstraint(Sketcher.Constraint("Coincident", 3, 2, 0, 1))
sketch3.addConstraint(Sketcher.Constraint("Coincident", 4, 2, 5, 1))
sketch3.addConstraint(Sketcher.Constraint("Coincident", 5, 2, 6, 1))
sketch3.addConstraint(Sketcher.Constraint("Coincident", 6, 2, 7, 1))
sketch3.addConstraint(Sketcher.Constraint("Coincident", 7, 2, 4, 1))
sketch3.addConstraint(Sketcher.Constraint("Coincident", 8, 2, 9, 1))
sketch3.addConstraint(Sketcher.Constraint("Coincident", 9, 2, 10, 1))
sketch3.addConstraint(Sketcher.Constraint("Coincident", 10, 2, 11, 1))
sketch3.addConstraint(Sketcher.Constraint("Coincident", 11, 2, 8, 1))
sketch3.addConstraint(Sketcher.Constraint("Coincident", 12, 2, 13, 1))
sketch3.addConstraint(Sketcher.Constraint("Coincident", 13, 2, 14, 1))
sketch3.addConstraint(Sketcher.Constraint("Coincident", 14, 2, 15, 1))
sketch3.addConstraint(Sketcher.Constraint("Coincident", 15, 2, 12, 1))
sketch3.addConstraint(Sketcher.Constraint("Vertical", 0))
sketch3.addConstraint(Sketcher.Constraint("Vertical", 2))
sketch3.addConstraint(Sketcher.Constraint("Horizontal", 4))
sketch3.addConstraint(Sketcher.Constraint("Horizontal", 6))
sketch3.addConstraint(Sketcher.Constraint("Vertical", 8))
sketch3.addConstraint(Sketcher.Constraint("Vertical", 10))
sketch3.addConstraint(Sketcher.Constraint("Horizontal", 12))
sketch3.addConstraint(Sketcher.Constraint("Horizontal", 14))
sketch3.addConstraint(Sketcher.Constraint("Symmetric", 0, 2, 8, 2, -1, 1))
sketch3.addConstraint(Sketcher.Constraint("Symmetric", 1, 2, 9, 2, -1, 1))
sketch3.addConstraint(Sketcher.Constraint("Symmetric", 4, 2, 12, 2, -1, 1))
sketch3.addConstraint(Sketcher.Constraint("Symmetric", 5, 2, 13, 2, -1, 1))
sketch3.addConstraint(Sketcher.Constraint("Perpendicular", 1, 3))
sketch3.addConstraint(Sketcher.Constraint("Parallel", 3, 5))
sketch3.addConstraint(Sketcher.Constraint("Perpendicular", 5, 7))
sketch3.addConstraint(Sketcher.Constraint("Perpendicular", 9, 11))
sketch3.addConstraint(Sketcher.Constraint("Perpendicular", 13, 15))
sketch3.addConstraint(Sketcher.Constraint("Horizontal", 3, 2, 8, 2))
sketch3.addConstraint(Sketcher.Constraint("Horizontal", 2, 2, 9, 2))
sketch3.addConstraint(Sketcher.Constraint("Horizontal", 1, 2, 10, 2))
sketch3.addConstraint(Sketcher.Constraint("Vertical", 7, 2, 12, 2))
sketch3.addConstraint(Sketcher.Constraint("Vertical", 5, 2, 14, 2))
sketch3.addConstraint(Sketcher.Constraint("Equal", 12, 0))
sketch3.addConstraint(Sketcher.Constraint("Equal", 14, 2))
sketch3.addConstraint(Sketcher.Constraint("DistanceX", 0, 2, 1, 2, 30.0))
sketch3.addConstraint(Sketcher.Constraint("DistanceX", 4, 2, 4, 1, 313.793396))
sketch3.addConstraint(Sketcher.Constraint("DistanceX", 0, 2, -1, 1, 269.68023))
sketch3.addConstraint(Sketcher.Constraint("DistanceY", -1, 1, 4, 2, 269.68023))
pad3 = doc.addObject("PartDesign::Pad", "Pad002")
body.addObject(pad3)
pad3.Profile = sketch3
pad3.setExpression("Length", "Params.pad3_length")
pad3.Reversed = True
doc.recompute()

fillet = doc.addObject("PartDesign::Fillet", "Fillet")
body.addObject(fillet)
fillet.Base = (pad3, edges_at(pad3, [
    (5, -193.76, 80.976),
    (5, -80.976, 193.76),
    (5, 80.976, 193.76),
    (5, 193.76, 80.976),
    (5, 193.76, -80.976),
    (5, 80.976, -193.76),
    (5, -80.976, -193.76),
    (5, -193.76, -80.976),
    (5, -239.68, 126.897),
    (5, -239.68, -126.897),
    (5, -126.897, 239.68),
    (5, 126.897, 239.68),
    (5, 239.68, 126.897),
    (5, 239.68, -126.897),
    (5, 126.897, -239.68),
    (5, -126.897, -239.68),
]))
fillet.setExpression("Radius", "Params.fillet_radius")

doc.recompute()
